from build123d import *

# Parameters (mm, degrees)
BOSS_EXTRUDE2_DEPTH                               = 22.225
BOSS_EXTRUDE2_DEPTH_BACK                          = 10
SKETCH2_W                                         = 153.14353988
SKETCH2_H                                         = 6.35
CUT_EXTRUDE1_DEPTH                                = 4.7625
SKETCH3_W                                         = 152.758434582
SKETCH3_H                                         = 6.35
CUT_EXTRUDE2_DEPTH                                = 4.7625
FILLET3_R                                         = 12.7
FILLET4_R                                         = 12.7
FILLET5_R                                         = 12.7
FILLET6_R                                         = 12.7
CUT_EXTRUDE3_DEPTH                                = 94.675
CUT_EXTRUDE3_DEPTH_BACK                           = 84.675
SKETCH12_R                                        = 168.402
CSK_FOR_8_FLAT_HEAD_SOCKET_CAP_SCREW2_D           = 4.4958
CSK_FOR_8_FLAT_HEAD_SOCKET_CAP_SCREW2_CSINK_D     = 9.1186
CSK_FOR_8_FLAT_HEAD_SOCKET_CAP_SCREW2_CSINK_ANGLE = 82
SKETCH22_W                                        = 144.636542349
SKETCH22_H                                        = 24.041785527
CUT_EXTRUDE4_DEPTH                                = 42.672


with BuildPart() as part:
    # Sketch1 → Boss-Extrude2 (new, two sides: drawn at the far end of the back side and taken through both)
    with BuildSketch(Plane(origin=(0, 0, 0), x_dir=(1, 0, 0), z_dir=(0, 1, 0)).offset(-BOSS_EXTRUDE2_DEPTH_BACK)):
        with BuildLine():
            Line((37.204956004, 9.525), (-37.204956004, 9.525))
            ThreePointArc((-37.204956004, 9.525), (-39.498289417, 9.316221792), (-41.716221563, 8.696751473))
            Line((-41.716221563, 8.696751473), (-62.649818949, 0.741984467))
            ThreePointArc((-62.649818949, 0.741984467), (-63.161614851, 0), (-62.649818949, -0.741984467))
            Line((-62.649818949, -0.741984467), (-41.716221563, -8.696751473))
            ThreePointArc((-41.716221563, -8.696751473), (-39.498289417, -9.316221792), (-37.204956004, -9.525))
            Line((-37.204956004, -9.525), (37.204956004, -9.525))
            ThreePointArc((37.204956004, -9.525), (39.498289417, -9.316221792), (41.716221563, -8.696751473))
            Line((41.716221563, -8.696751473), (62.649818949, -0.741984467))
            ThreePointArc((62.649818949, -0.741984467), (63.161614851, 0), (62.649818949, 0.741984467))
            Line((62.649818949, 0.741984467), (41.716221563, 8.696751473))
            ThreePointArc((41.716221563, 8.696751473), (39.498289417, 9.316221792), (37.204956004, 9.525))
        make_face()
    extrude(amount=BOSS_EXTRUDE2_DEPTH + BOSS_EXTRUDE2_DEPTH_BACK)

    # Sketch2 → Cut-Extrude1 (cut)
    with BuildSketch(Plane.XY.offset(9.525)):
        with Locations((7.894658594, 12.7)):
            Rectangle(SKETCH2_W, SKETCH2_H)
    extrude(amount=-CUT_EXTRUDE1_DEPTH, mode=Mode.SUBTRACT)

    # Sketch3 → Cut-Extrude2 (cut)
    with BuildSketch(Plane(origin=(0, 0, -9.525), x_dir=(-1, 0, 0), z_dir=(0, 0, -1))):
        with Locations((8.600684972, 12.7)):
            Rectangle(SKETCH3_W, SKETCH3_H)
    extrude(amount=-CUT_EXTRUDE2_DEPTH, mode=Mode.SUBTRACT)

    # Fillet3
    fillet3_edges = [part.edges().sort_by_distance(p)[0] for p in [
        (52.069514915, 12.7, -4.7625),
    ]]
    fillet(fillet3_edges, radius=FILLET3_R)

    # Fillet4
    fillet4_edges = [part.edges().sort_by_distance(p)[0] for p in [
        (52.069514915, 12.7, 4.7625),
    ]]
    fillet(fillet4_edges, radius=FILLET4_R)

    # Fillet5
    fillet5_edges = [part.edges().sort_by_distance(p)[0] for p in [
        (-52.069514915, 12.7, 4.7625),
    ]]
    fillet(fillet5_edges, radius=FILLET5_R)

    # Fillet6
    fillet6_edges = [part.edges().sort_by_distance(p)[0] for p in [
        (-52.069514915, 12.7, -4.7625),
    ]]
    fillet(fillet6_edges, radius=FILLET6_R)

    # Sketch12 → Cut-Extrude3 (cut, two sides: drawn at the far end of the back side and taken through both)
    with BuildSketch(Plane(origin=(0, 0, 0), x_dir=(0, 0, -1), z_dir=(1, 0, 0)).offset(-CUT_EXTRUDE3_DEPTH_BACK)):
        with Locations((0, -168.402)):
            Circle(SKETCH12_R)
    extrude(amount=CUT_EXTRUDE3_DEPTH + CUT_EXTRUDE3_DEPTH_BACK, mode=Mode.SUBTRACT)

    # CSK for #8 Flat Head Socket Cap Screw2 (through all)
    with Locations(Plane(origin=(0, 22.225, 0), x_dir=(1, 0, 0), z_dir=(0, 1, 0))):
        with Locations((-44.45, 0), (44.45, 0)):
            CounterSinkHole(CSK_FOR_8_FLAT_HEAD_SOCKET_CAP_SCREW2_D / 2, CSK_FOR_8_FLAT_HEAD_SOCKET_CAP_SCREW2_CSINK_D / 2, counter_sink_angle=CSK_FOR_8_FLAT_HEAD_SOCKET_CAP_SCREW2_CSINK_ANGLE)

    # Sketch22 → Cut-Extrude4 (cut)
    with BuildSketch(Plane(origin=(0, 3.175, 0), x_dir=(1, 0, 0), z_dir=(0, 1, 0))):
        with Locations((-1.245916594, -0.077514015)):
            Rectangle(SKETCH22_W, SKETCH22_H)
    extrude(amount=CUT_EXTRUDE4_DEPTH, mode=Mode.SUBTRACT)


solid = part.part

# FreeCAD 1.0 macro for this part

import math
import FreeCAD as App
import Part
import Sketcher
Q = App.Units.Quantity


def edges_at(feature, points):
    """Names of the edges that pass closest to the given points."""
    edges = feature.Shape.Edges
    near = lambda p: min(range(len(edges)), key=lambda i: edges[i].distToShape(Part.Vertex(*p))[0])
    return sorted({f"Edge{near(p) + 1}" for p in points})

doc = App.newDocument("Part")
params = doc.addObject("Spreadsheet::Sheet", "Params")
for row, (alias, value) in enumerate([
    ("sketch1_radius", "0.5 in"),
    ("sketch1_radius2", "0.03125 in"),
    ("pad1_length", "0.875 in"),
    ("pad1_length2", "10 mm"),
    ("sketch2_height", "0.25 in"),
    ("pocket1_length", "0.1875 in"),
    ("sketch3_height", "0.25 in"),
    ("pocket2_length", "0.1875 in"),
    ("fillet_radius", "0.5 in"),
    ("fillet2_radius", "0.5 in"),
    ("fillet3_radius", "0.5 in"),
    ("fillet4_radius", "0.5 in"),
    ("sketch4_diameter", "13.26 in"),
    ("sketch5_diameter", "0.177 in"),
    ("hole_diameter", "0.177 in"),
    ("hole_csink_diameter", "0.359 in"),
    ("pocket4_length", "1.68 in"),
], start=1):
    params.set(f"A{row}", alias)
    params.set(f"B{row}", "=" + value)
    params.setAlias(f"B{row}", alias)

body = doc.addObject("PartDesign::Body", "Body")

# Sketch on XZ plane
sketch1 = doc.addObject("Sketcher::SketchObject", "Sketch")
body.addObject(sketch1)
sketch1.AttachmentSupport = (doc.XZ_Plane, [""])
sketch1.MapMode = "FlatFace"
sketch1.addGeometry(Part.LineSegment(App.Vector(37.2, -9.5, 0), App.Vector(-37.2, -9.5, 0)), False)
sketch1.addGeometry(Part.ArcOfCircle(Part.Circle(App.Vector(-37.2, 3.2, 0), App.Vector(0, 0, 1), 12.7), math.radians(-111), math.radians(-90)), False)
sketch1.addGeometry(Part.LineSegment(App.Vector(-41.7, -8.7, 0), App.Vector(-62.6, -0.7, 0)), False)
sketch1.addGeometry(Part.ArcOfCircle(Part.Circle(App.Vector(-62.4, 0, 0), App.Vector(0, 0, 1), 0.8), math.radians(111), math.radians(249)), False)
sketch1.addGeometry(Part.LineSegment(App.Vector(-62.6, 0.7, 0), App.Vector(-41.7, 8.7, 0)), False)
sketch1.addGeometry(Part.ArcOfCircle(Part.Circle(App.Vector(-37.2, -3.2, 0), App.Vector(0, 0, 1), 12.7), math.radians(90), math.radians(111)), False)
sketch1.addGeometry(Part.LineSegment(App.Vector(-37.2, 9.5, 0), App.Vector(37.2, 9.5, 0)), False)
sketch1.addGeometry(Part.ArcOfCircle(Part.Circle(App.Vector(37.2, -3.2, 0), App.Vector(0, 0, 1), 12.7), math.radians(69), math.radians(90)), False)
sketch1.addGeometry(Part.LineSegment(App.Vector(41.7, 8.7, 0), App.Vector(62.6, 0.7, 0)), False)
sketch1.addGeometry(Part.ArcOfCircle(Part.Circle(App.Vector(62.4, 0, 0), App.Vector(0, 0, 1), 0.8), math.radians(-69), math.radians(69)), False)
sketch1.addGeometry(Part.LineSegment(App.Vector(62.6, -0.7, 0), App.Vector(41.7, -8.7, 0)), False)
sketch1.addGeometry(Part.ArcOfCircle(Part.Circle(App.Vector(37.2, 3.2, 0), App.Vector(0, 0, 1), 12.7), math.radians(-90), math.radians(-69)), False)
sketch1.addConstraint(Sketcher.Constraint("Tangent", 0, 2, 1, 2))
sketch1.addConstraint(Sketcher.Constraint("Tangent", 1, 1, 2, 1))
sketch1.addConstraint(Sketcher.Constraint("Tangent", 2, 2, 3, 2))
sketch1.addConstraint(Sketcher.Constraint("Tangent", 3, 1, 4, 1))
sketch1.addConstraint(Sketcher.Constraint("Tangent", 4, 2, 5, 2))
sketch1.addConstraint(Sketcher.Constraint("Tangent", 5, 1, 6, 1))
sketch1.addConstraint(Sketcher.Constraint("Tangent", 6, 2, 7, 2))
sketch1.addConstraint(Sketcher.Constraint("Tangent", 7, 1, 8, 1))
sketch1.addConstraint(Sketcher.Constraint("Tangent", 8, 2, 9, 2))
sketch1.addConstraint(Sketcher.Constraint("Tangent", 9, 1, 10, 1))
sketch1.addConstraint(Sketcher.Constraint("Tangent", 10, 2, 11, 2))
sketch1.addConstraint(Sketcher.Constraint("Tangent", 11, 1, 0, 1))
sketch1.addConstraint(Sketcher.Constraint("Horizontal", 0))
sketch1.addConstraint(Sketcher.Constraint("Horizontal", 6))
sketch1.addConstraint(Sketcher.Constraint("Equal", 1, 5))
sketch1.addConstraint(Sketcher.Constraint("Equal", 5, 7))
sketch1.addConstraint(Sketcher.Constraint("Equal", 3, 9))
sketch1.addConstraint(Sketcher.Constraint("Equal", 7, 11))
sketch1.addConstraint(Sketcher.Constraint("Symmetric", 1, 3, 7, 3, -1, 1))
sketch1.addConstraint(Sketcher.Constraint("Symmetric", 3, 3, 9, 3, -1, 1))
sketch1.addConstraint(Sketcher.Constraint("Symmetric", 4, 2, 7, 1, -2))
sketch1.addConstraint(Sketcher.Constraint("Parallel", 4, 10))
sketch1.addConstraint(Sketcher.Constraint("Radius", 1, Q("0.5 in")))
sketch1.addConstraint(Sketcher.Constraint("Radius", 3, Q("0.03125 in")))
sketch1.addConstraint(Sketcher.Constraint("DistanceY", 5, 3, 1, 3, Q("0.25 in")))
sketch1.addConstraint(Sketcher.Constraint("DistanceX", 0, 2, 0, 1, 74.409912))
sketch1.addConstraint(Sketcher.Constraint("DistanceX", 1, 1, -1, 1, 41.716222))
sketch1.setExpression("Constraints[22]", "Params.sketch1_radius")
sketch1.setExpression("Constraints[23]", "Params.sketch1_radius2")
pad1 = doc.addObject("PartDesign::Pad", "Pad")
body.addObject(pad1)
pad1.Profile = sketch1
pad1.Type = "TwoLengths"
pad1.setExpression("Length", "Params.pad1_length")
pad1.setExpression("Length2", "Params.pad1_length2")
pad1.Reversed = True

# Sketch on XY plane
sketch2 = doc.addObject("Sketcher::SketchObject", "Sketch001")
body.addObject(sketch2)
sketch2.AttachmentSupport = (doc.XY_Plane, [""])
sketch2.MapMode = "FlatFace"
sketch2.AttachmentOffset = App.Placement(App.Vector(0, 0, 0.375 * 25.4), App.Rotation())
sketch2.addGeometry(Part.LineSegment(App.Vector(-69, 16, 0), App.Vector(-69, 10, 0)), False)
sketch2.addGeometry(Part.LineSegment(App.Vector(-69, 10, 0), App.Vector(84, 10, 0)), False)
sketch2.addGeometry(Part.LineSegment(App.Vector(84, 10, 0), App.Vector(84, 16, 0)), False)
sketch2.addGeometry(Part.LineSegment(App.Vector(84, 16, 0), App.Vector(-69, 16, 0)), False)
sketch2.addConstraint(Sketcher.Constraint("Coincident", 0, 2, 1, 1))
sketch2.addConstraint(Sketcher.Constraint("Coincident", 1, 2, 2, 1))
sketch2.addConstraint(Sketcher.Constraint("Coincident", 2, 2, 3, 1))
sketch2.addConstraint(Sketcher.Constraint("Coincident", 3, 2, 0, 1))
sketch2.addConstraint(Sketcher.Constraint("Vertical", 0))
sketch2.addConstraint(Sketcher.Constraint("Horizontal", 1))
sketch2.addConstraint(Sketcher.Constraint("Vertical", 2))
sketch2.addConstraint(Sketcher.Constraint("Horizontal", 3))
sketch2.addConstraint(Sketcher.Constraint("DistanceY", 0, 2, 0, 1, Q("0.25 in")))
sketch2.addConstraint(Sketcher.Constraint("DistanceY", -1, 1, 0, 2, Q("0.375 in")))
sketch2.addConstraint(Sketcher.Constraint("DistanceX", 1, 1, 1, 2, 153.14354))
sketch2.addConstraint(Sketcher.Constraint("DistanceX", 0, 2, -1, 1, 68.677111))
sketch2.setExpression("Constraints[8]", "Params.sketch2_height")
pocket1 = doc.addObject("PartDesign::Pocket", "Pocket")
body.addObject(pocket1)
pocket1.Profile = sketch2
pocket1.setExpression("Length", "Params.pocket1_length")

# Sketch on XY plane
sketch3 = doc.addObject("Sketcher::SketchObject", "Sketch002")
body.addObject(sketch3)
sketch3.AttachmentSupport = (doc.XY_Plane, [""])
sketch3.MapMode = "FlatFace"
sketch3.AttachmentOffset = App.Placement(App.Vector(0, 0, -0.375 * 25.4), App.Rotation())
sketch3.addGeometry(Part.LineSegment(App.Vector(68, 16, 0), App.Vector(68, 10, 0)), False)
sketch3.addGeometry(Part.LineSegment(App.Vector(68, 10, 0), App.Vector(-85, 10, 0)), False)
sketch3.addGeometry(Part.LineSegment(App.Vector(-85, 10, 0), App.Vector(-85, 16, 0)), False)
sketch3.addGeometry(Part.LineSegment(App.Vector(-85, 16, 0), App.Vector(68, 16, 0)), False)
sketch3.addConstraint(Sketcher.Constraint("Coincident", 0, 2, 1, 1))
sketch3.addConstraint(Sketcher.Constraint("Coincident", 1, 2, 2, 1))
sketch3.addConstraint(Sketcher.Constraint("Coincident", 2, 2, 3, 1))
sketch3.addConstraint(Sketcher.Constraint("Coincident", 3, 2, 0, 1))
sketch3.addConstraint(Sketcher.Constraint("Vertical", 0))
sketch3.addConstraint(Sketcher.Constraint("Horizontal", 1))
sketch3.addConstraint(Sketcher.Constraint("Vertical", 2))
sketch3.addConstraint(Sketcher.Constraint("Horizontal", 3))
sketch3.addConstraint(Sketcher.Constraint("DistanceY", 0, 2, 0, 1, Q("0.25 in")))
sketch3.addConstraint(Sketcher.Constraint("DistanceY", -1, 1, 0, 2, Q("0.375 in")))
sketch3.addConstraint(Sketcher.Constraint("DistanceX", 1, 2, 1, 1, 152.758435))
sketch3.addConstraint(Sketcher.Constraint("DistanceX", -1, 1, 0, 2, 67.778532))
sketch3.setExpression("Constraints[8]", "Params.sketch3_height")
pocket2 = doc.addObject("PartDesign::Pocket", "Pocket001")
body.addObject(pocket2)
pocket2.Profile = sketch3
pocket2.setExpression("Length", "Params.pocket2_length")
pocket2.Reversed = True
doc.recompute()

fillet = doc.addObject("PartDesign::Fillet", "Fillet")
body.addObject(fillet)
fillet.Base = (pocket2, edges_at(pocket2, [(52.07, 12.7, -4.763)]))
fillet.setExpression("Radius", "Params.fillet_radius")
doc.recompute()

fillet2 = doc.addObject("PartDesign::Fillet", "Fillet001")
body.addObject(fillet2)
fillet2.Base = (fillet, edges_at(fillet, [(52.07, 12.7, 4.763)]))
fillet2.setExpression("Radius", "Params.fillet2_radius")
doc.recompute()

fillet3 = doc.addObject("PartDesign::Fillet", "Fillet002")
body.addObject(fillet3)
fillet3.Base = (fillet2, edges_at(fillet2, [(-52.07, 12.7, 4.763)]))
fillet3.setExpression("Radius", "Params.fillet3_radius")
doc.recompute()

fillet4 = doc.addObject("PartDesign::Fillet", "Fillet003")
body.addObject(fillet4)
fillet4.Base = (fillet3, edges_at(fillet3, [(-52.07, 12.7, -4.763)]))
fillet4.setExpression("Radius", "Params.fillet4_radius")

# Sketch on YZ plane
sketch4 = doc.addObject("Sketcher::SketchObject", "Sketch003")
body.addObject(sketch4)
sketch4.AttachmentSupport = (doc.YZ_Plane, [""])
sketch4.MapMode = "FlatFace"
sketch4.addGeometry(Part.Circle(App.Vector(-168, 0, 0), App.Vector(0, 0, 1), 168), False)
sketch4.addConstraint(Sketcher.Constraint("PointOnObject", 0, 3, -1))
sketch4.addConstraint(Sketcher.Constraint("Diameter", 0, Q("13.26 in")))
sketch4.addConstraint(Sketcher.Constraint("DistanceX", 0, 3, -1, 1, Q("6.63 in")))
sketch4.setExpression("Constraints[1]", "Params.sketch4_diameter")
pocket3 = doc.addObject("PartDesign::Pocket", "Pocket002")
body.addObject(pocket3)
pocket3.Profile = sketch4
pocket3.Type = "ThroughAll"
pocket3.Midplane = True

# Sketch on XZ plane
sketch5 = doc.addObject("Sketcher::SketchObject", "Sketch004")
body.addObject(sketch5)
sketch5.AttachmentSupport = (doc.XZ_Plane, [""])
sketch5.MapMode = "FlatFace"
sketch5.AttachmentOffset = App.Placement(App.Vector(0, 0, -0.875 * 25.4), App.Rotation())
sketch5.addGeometry(Part.Circle(App.Vector(-44.5, 0, 0), App.Vector(0, 0, 1), 2.2), False)
sketch5.addGeometry(Part.Circle(App.Vector(44.5, 0, 0), App.Vector(0, 0, 1), 2.2), False)
sketch5.addConstraint(Sketcher.Constraint("Equal", 0, 1))
sketch5.addConstraint(Sketcher.Constraint("Symmetric", 0, 3, 1, 3, -1, 1))
sketch5.addConstraint(Sketcher.Constraint("PointOnObject", 0, 3, -1))
sketch5.addConstraint(Sketcher.Constraint("Diameter", 0, Q("0.177 in")))
sketch5.addConstraint(Sketcher.Constraint("DistanceX", 0, 3, 1, 3, Q("3.5 in")))
sketch5.setExpression("Constraints[3]", "Params.sketch5_diameter")
doc.recompute()
hole = doc.addObject("PartDesign::Hole", "Hole")
body.addObject(hole)
hole.Profile = sketch5
hole.ThreadType = "None"
hole.setExpression("Diameter", "Params.hole_diameter")
hole.DepthType = "ThroughAll"
hole.HoleCutType = "Countersink"
hole.setExpression("HoleCutDiameter", "Params.hole_csink_diameter")
hole.HoleCutCountersinkAngle = 82
hole.Reversed = True

# Sketch on XZ plane
sketch6 = doc.addObject("Sketcher::SketchObject", "Sketch005")
body.addObject(sketch6)
sketch6.AttachmentSupport = (doc.XZ_Plane, [""])
sketch6.MapMode = "FlatFace"
sketch6.AttachmentOffset = App.Placement(App.Vector(0, 0, -0.125 * 25.4), App.Rotation())
sketch6.addGeometry(Part.LineSegment(App.Vector(-74, -12, 0), App.Vector(-74, 12, 0)), False)
sketch6.addGeometry(Part.LineSegment(App.Vector(-74, 12, 0), App.Vector(71, 12, 0)), False)
sketch6.addGeometry(Part.LineSegment(App.Vector(71, 12, 0), App.Vector(71, -12, 0)), False)
sketch6.addGeometry(Part.LineSegment(App.Vector(71, -12, 0), App.Vector(-74, -12, 0)), False)
sketch6.addConstraint(Sketcher.Constraint("Coincident", 0, 2, 1, 1))
sketch6.addConstraint(Sketcher.Constraint("Coincident", 1, 2, 2, 1))
sketch6.addConstraint(Sketcher.Constraint("Coincident", 2, 2, 3, 1))
sketch6.addConstraint(Sketcher.Constraint("Coincident", 3, 2, 0, 1))
sketch6.addConstraint(Sketcher.Constraint("Vertical", 0))
sketch6.addConstraint(Sketcher.Constraint("Horizontal", 1))
sketch6.addConstraint(Sketcher.Constraint("Vertical", 2))
sketch6.addConstraint(Sketcher.Constraint("Horizontal", 3))
sketch6.addConstraint(Sketcher.Constraint("DistanceX", 1, 1, 1, 2, 144.636542))
sketch6.addConstraint(Sketcher.Constraint("DistanceY", 0, 1, 0, 2, 24.041786))
sketch6.addConstraint(Sketcher.Constraint("DistanceY", 2, 2, -1, 1, 11.943379))
sketch6.addConstraint(Sketcher.Constraint("DistanceX", 0, 2, -1, 1, 73.564188))
pocket4 = doc.addObject("PartDesign::Pocket", "Pocket003")
body.addObject(pocket4)
pocket4.Profile = sketch6
pocket4.setExpression("Length", "Params.pocket4_length")

doc.recompute()
